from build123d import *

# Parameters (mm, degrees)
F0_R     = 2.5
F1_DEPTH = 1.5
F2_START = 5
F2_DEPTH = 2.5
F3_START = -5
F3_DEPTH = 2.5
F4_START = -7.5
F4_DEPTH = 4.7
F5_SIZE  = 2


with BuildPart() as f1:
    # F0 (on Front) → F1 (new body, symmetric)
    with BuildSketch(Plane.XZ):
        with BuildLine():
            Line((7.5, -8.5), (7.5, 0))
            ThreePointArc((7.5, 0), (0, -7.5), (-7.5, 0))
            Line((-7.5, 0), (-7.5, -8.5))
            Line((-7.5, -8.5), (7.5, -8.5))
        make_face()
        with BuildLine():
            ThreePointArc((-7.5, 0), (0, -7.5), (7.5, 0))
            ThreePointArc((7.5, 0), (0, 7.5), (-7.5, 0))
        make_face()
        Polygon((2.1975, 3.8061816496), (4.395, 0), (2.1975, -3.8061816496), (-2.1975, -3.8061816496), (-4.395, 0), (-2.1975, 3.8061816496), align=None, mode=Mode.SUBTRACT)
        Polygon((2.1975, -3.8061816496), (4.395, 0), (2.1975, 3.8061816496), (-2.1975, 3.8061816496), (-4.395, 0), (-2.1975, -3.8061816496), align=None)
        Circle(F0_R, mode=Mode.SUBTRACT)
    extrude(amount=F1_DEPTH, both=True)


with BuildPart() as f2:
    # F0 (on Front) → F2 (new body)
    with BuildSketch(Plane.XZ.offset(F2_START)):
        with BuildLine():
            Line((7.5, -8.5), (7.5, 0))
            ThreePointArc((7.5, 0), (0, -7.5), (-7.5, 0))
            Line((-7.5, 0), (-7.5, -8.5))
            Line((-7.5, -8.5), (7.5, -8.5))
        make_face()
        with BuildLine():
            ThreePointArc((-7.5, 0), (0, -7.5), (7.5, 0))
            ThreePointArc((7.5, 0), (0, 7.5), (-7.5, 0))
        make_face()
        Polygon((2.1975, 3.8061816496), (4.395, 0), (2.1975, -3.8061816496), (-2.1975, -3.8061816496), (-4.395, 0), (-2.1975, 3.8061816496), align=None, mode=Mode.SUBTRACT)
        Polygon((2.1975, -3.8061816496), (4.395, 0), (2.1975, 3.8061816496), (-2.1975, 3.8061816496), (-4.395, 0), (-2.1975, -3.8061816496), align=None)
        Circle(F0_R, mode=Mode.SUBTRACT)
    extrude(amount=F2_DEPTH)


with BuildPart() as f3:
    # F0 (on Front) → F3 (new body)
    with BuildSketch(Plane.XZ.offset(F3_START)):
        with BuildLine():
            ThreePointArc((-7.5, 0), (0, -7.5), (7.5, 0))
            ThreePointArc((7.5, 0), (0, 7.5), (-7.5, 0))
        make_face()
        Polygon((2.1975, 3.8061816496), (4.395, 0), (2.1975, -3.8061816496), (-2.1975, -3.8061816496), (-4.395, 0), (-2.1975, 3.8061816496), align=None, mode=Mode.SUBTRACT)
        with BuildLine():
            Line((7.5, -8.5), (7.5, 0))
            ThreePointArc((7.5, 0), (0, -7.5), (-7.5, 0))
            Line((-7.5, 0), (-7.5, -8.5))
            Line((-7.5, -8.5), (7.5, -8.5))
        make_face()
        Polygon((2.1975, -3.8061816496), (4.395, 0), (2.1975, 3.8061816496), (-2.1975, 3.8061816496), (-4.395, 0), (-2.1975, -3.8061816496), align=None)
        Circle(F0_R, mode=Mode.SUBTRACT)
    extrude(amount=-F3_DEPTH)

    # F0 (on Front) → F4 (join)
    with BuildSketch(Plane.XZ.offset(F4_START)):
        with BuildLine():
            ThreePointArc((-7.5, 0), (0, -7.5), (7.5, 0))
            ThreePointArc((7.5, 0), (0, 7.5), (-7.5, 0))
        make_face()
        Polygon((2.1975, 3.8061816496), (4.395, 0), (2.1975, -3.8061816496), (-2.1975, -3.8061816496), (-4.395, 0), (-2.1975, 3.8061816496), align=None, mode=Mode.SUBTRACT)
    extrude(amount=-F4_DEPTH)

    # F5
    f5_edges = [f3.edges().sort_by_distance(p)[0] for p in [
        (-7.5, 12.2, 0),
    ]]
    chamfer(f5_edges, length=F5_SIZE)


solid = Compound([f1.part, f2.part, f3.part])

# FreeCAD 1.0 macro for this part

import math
import FreeCAD as App
import Part
import Sketcher
Q = App.Units.Quantity


def edges_at(feature, points):
    """Names of the edges that pass closest to the given points."""
    edges = feature.Shape.Edges
    near = lambda p: min(range(len(edges)), key=lambda i: edges[i].distToShape(Part.Vertex(*p))[0])
    return sorted({f"Edge{near(p) + 1}" for p in points})

doc = App.newDocument("Part")
params = doc.addObject("Spreadsheet::Sheet", "Params")
for row, (alias, value) in enumerate([
    ("sketch1_diameter", "5 mm"),
    ("sketch1_radius", "7.5 mm"),
    ("sketch1_height", "8.5 mm"),
    ("pad1_length", "3 mm"),
    ("sketch2_diameter", "5 mm"),
    ("sketch2_radius", "7.5 mm"),
    ("sketch2_height", "8.5 mm"),
    ("pad2_length", "2.5 mm"),
    ("sketch3_diameter", "5 mm"),
    ("sketch3_radius", "7.5 mm"),
    ("sketch3_height", "8.5 mm"),
    ("pad3_length", "2.5 mm"),
    ("sketch4_diameter", "15 mm"),
    ("pad4_length", "4.7 mm"),
    ("chamfer_size", "2 mm"),
], start=1):
    params.set(f"A{row}", alias)
    params.set(f"B{row}", "=" + value)
    params.setAlias(f"B{row}", alias)

body = doc.addObject("PartDesign::Body", "Body")

# Sketch on XZ plane
sketch1 = body.newObject("Sketcher::SketchObject", "Sketch")
sketch1.AttachmentSupport = (doc.getObject("XZ_Plane"), [""])
sketch1.MapMode = "FlatFace"
sketch1.addGeometry(Part.LineSegment(App.Vector(7.5, -8.5, 0), App.Vector(7.5, 0, 0)), False)
sketch1.addGeometry(Part.ArcOfCircle(Part.Circle(App.Vector(0, 0, 0), App.Vector(0, 0, 1), 7.5), math.radians(0), math.radians(180)), False)
sketch1.addGeometry(Part.LineSegment(App.Vector(-7.5, 0, 0), App.Vector(-7.5, -8.5, 0)), False)
sketch1.addGeometry(Part.LineSegment(App.Vector(-7.5, -8.5, 0), App.Vector(7.5, -8.5, 0)), False)
sketch1.addGeometry(Part.Circle(App.Vector(0, 0, 0), App.Vector(0, 0, 1), 2.5), False)
sketch1.addConstraint(Sketcher.Constraint("Tangent", 0, 2, 1, 1))
sketch1.addConstraint(Sketcher.Constraint("Tangent", 1, 2, 2, 1))
sketch1.addConstraint(Sketcher.Constraint("Coincident", 2, 2, 3, 1))
sketch1.addConstraint(Sketcher.Constraint("Coincident", 3, 2, 0, 1))
sketch1.addConstraint(Sketcher.Constraint("Vertical", 0))
sketch1.addConstraint(Sketcher.Constraint("Vertical", 2))
sketch1.addConstraint(Sketcher.Constraint("Horizontal", 3))
sketch1.addConstraint(Sketcher.Constraint("Coincident", 1, 3, -1, 1))
sketch1.addConstraint(Sketcher.Constraint("Coincident", 4, 3, -1, 1))
sketch1.addConstraint(Sketcher.Constraint("Diameter", 4, Q("5 mm")))
sketch1.addConstraint(Sketcher.Constraint("Radius", 1, Q("7.5 mm")))
sketch1.addConstraint(Sketcher.Constraint("DistanceY", 0, 1, 0, 2, Q("8.5 mm")))
sketch1.setExpression("Constraints[9]", "Params.sketch1_diameter")
sketch1.setExpression("Constraints[10]", "Params.sketch1_radius")
sketch1.setExpression("Constraints[11]", "Params.sketch1_height")
pad1 = body.newObject("PartDesign::Pad", "Pad")
pad1.Profile = sketch1
pad1.setExpression("Length", "Params.pad1_length")
pad1.Midplane = True
body2 = doc.addObject("PartDesign::Body", "Body001")

# Sketch on XZ plane
sketch2 = body2.newObject("Sketcher::SketchObject", "Sketch001")
sketch2.AttachmentSupport = (doc.getObject("XZ_Plane001"), [""])
sketch2.MapMode = "FlatFace"
sketch2.AttachmentOffset = App.Placement(App.Vector(0, 0, 5), App.Rotation())
sketch2.addGeometry(Part.LineSegment(App.Vector(7.5, -8.5, 0), App.Vector(7.5, 0, 0)), False)
sketch2.addGeometry(Part.ArcOfCircle(Part.Circle(App.Vector(0, 0, 0), App.Vector(0, 0, 1), 7.5), math.radians(0), math.radians(180)), False)
sketch2.addGeometry(Part.LineSegment(App.Vector(-7.5, 0, 0), App.Vector(-7.5, -8.5, 0)), False)
sketch2.addGeometry(Part.LineSegment(App.Vector(-7.5, -8.5, 0), App.Vector(7.5, -8.5, 0)), False)
sketch2.addGeometry(Part.Circle(App.Vector(0, 0, 0), App.Vector(0, 0, 1), 2.5), False)
sketch2.addConstraint(Sketcher.Constraint("Tangent", 0, 2, 1, 1))
sketch2.addConstraint(Sketcher.Constraint("Tangent", 1, 2, 2, 1))
sketch2.addConstraint(Sketcher.Constraint("Coincident", 2, 2, 3, 1))
sketch2.addConstraint(Sketcher.Constraint("Coincident", 3, 2, 0, 1))
sketch2.addConstraint(Sketcher.Constraint("Vertical", 0))
sketch2.addConstraint(Sketcher.Constraint("Vertical", 2))
sketch2.addConstraint(Sketcher.Constraint("Horizontal", 3))
sketch2.addConstraint(Sketcher.Constraint("Coincident", 1, 3, -1, 1))
sketch2.addConstraint(Sketcher.Constraint("Coincident", 4, 3, -1, 1))
sketch2.addConstraint(Sketcher.Constraint("Diameter", 4, Q("5 mm")))
sketch2.addConstraint(Sketcher.Constraint("Radius", 1, Q("7.5 mm")))
sketch2.addConstraint(Sketcher.Constraint("DistanceY", 0, 1, 0, 2, Q("8.5 mm")))
sketch2.setExpression("Constraints[9]", "Params.sketch2_diameter")
sketch2.setExpression("Constraints[10]", "Params.sketch2_radius")
sketch2.setExpression("Constraints[11]", "Params.sketch2_height")
pad2 = body2.newObject("PartDesign::Pad", "Pad001")
pad2.Profile = sketch2
pad2.setExpression("Length", "Params.pad2_length")
body3 = doc.addObject("PartDesign::Body", "Body002")

# Sketch on XZ plane
sketch3 = body3.newObject("Sketcher::SketchObject", "Sketch002")
sketch3.AttachmentSupport = (doc.getObject("XZ_Plane002"), [""])
sketch3.MapMode = "FlatFace"
sketch3.AttachmentOffset = App.Placement(App.Vector(0, 0, -5), App.Rotation())
sketch3.addGeometry(Part.ArcOfCircle(Part.Circle(App.Vector(0, 0, 0), App.Vector(0, 0, 1), 7.5), math.radians(0), math.radians(180)), False)
sketch3.addGeometry(Part.LineSegment(App.Vector(-7.5, 0, 0), App.Vector(-7.5, -8.5, 0)), False)
sketch3.addGeometry(Part.LineSegment(App.Vector(-7.5, -8.5, 0), App.Vector(7.5, -8.5, 0)), False)
sketch3.addGeometry(Part.LineSegment(App.Vector(7.5, -8.5, 0), App.Vector(7.5, 0, 0)), False)
sketch3.addGeometry(Part.Circle(App.Vector(0, 0, 0), App.Vector(0, 0, 1), 2.5), False)
sketch3.addConstraint(Sketcher.Constraint("Tangent", 0, 2, 1, 1))
sketch3.addConstraint(Sketcher.Constraint("Coincident", 1, 2, 2, 1))
sketch3.addConstraint(Sketcher.Constraint("Coincident", 2, 2, 3, 1))
sketch3.addConstraint(Sketcher.Constraint("Tangent", 3, 2, 0, 1))
sketch3.addConstraint(Sketcher.Constraint("Vertical", 1))
sketch3.addConstraint(Sketcher.Constraint("Horizontal", 2))
sketch3.addConstraint(Sketcher.Constraint("Vertical", 3))
sketch3.addConstraint(Sketcher.Constraint("Coincident", 0, 3, -1, 1))
sketch3.addConstraint(Sketcher.Constraint("Coincident", 4, 3, -1, 1))
sketch3.addConstraint(Sketcher.Constraint("Diameter", 4, Q("5 mm")))
sketch3.addConstraint(Sketcher.Constraint("Radius", 0, Q("7.5 mm")))
sketch3.addConstraint(Sketcher.Constraint("DistanceY", 1, 2, 1, 1, Q("8.5 mm")))
sketch3.setExpression("Constraints[9]", "Params.sketch3_diameter")
sketch3.setExpression("Constraints[10]", "Params.sketch3_radius")
sketch3.setExpression("Constraints[11]", "Params.sketch3_height")
pad3 = body3.newObject("PartDesign::Pad", "Pad002")
pad3.Profile = sketch3
pad3.setExpression("Length", "Params.pad3_length")
pad3.Reversed = True

# Sketch on XZ plane
sketch4 = body3.newObject("Sketcher::SketchObject", "Sketch003")
sketch4.AttachmentSupport = (doc.getObject("XZ_Plane002"), [""])
sketch4.MapMode = "FlatFace"
sketch4.AttachmentOffset = App.Placement(App.Vector(0, 0, -7.5), App.Rotation())
sketch4.addGeometry(Part.Circle(App.Vector(0, 0, 0), App.Vector(0, 0, 1), 7.5), False)
sketch4.addGeometry(Part.LineSegment(App.Vector(-2.2, 3.8, 0), App.Vector(2.2, 3.8, 0)), False)
sketch4.addGeometry(Part.LineSegment(App.Vector(2.2, 3.8, 0), App.Vector(4.4, 0, 0)), False)
sketch4.addGeometry(Part.LineSegment(App.Vector(4.4, 0, 0), App.Vector(2.2, -3.8, 0)), False)
sketch4.addGeometry(Part.LineSegment(App.Vector(2.2, -3.8, 0), App.Vector(-2.2, -3.8, 0)), False)
sketch4.addGeometry(Part.LineSegment(App.Vector(-2.2, -3.8, 0), App.Vector(-4.4, 0, 0)), False)
sketch4.addGeometry(Part.LineSegment(App.Vector(-4.4, 0, 0), App.Vector(-2.2, 3.8, 0)), False)
sketch4.addConstraint(Sketcher.Constraint("Coincident", 1, 2, 2, 1))
sketch4.addConstraint(Sketcher.Constraint("Coincident", 2, 2, 3, 1))
sketch4.addConstraint(Sketcher.Constraint("Coincident", 3, 2, 4, 1))
sketch4.addConstraint(Sketcher.Constraint("Coincident", 4, 2, 5, 1))
sketch4.addConstraint(Sketcher.Constraint("Coincident", 5, 2, 6, 1))
sketch4.addConstraint(Sketcher.Constraint("Coincident", 6, 2, 1, 1))
sketch4.addConstraint(Sketcher.Constraint("Horizontal", 1))
sketch4.addConstraint(Sketcher.Constraint("Horizontal", 4))
sketch4.addConstraint(Sketcher.Constraint("Coincident", 0, 3, -1, 1))
sketch4.addConstraint(Sketcher.Constraint("Symmetric", 1, 2, 4, 2, -1, 1))
sketch4.addConstraint(Sketcher.Constraint("Symmetric", 2, 2, 5, 2, -1, 1))
sketch4.addConstraint(Sketcher.Constraint("PointOnObject", 2, 2, -1))
sketch4.addConstraint(Sketcher.Constraint("Parallel", 3, 6))
sketch4.addConstraint(Sketcher.Constraint("Vertical", 1, 2, 3, 2))
sketch4.addConstraint(Sketcher.Constraint("Diameter", 0, Q("15 mm")))
sketch4.addConstraint(Sketcher.Constraint("Angle", 2, Q("-60 deg")))
sketch4.addConstraint(Sketcher.Constraint("DistanceX", 1, 1, 1, 2, Q("4.395 mm")))
sketch4.addConstraint(Sketcher.Constraint("DistanceX", 5, 2, 2, 2, Q("8.79 mm")))
sketch4.setExpression("Constraints[14]", "Params.sketch4_diameter")
pad4 = body3.newObject("PartDesign::Pad", "Pad003")
pad4.Profile = sketch4
pad4.setExpression("Length", "Params.pad4_length")
pad4.Reversed = True
doc.recompute()

chamfer = body3.newObject("PartDesign::Chamfer", "Chamfer")
chamfer.Base = (pad4, edges_at(pad4, [(-7.5, 12.2, 0)]))
chamfer.setExpression("Size", "Params.chamfer_size")

doc.recompute()
